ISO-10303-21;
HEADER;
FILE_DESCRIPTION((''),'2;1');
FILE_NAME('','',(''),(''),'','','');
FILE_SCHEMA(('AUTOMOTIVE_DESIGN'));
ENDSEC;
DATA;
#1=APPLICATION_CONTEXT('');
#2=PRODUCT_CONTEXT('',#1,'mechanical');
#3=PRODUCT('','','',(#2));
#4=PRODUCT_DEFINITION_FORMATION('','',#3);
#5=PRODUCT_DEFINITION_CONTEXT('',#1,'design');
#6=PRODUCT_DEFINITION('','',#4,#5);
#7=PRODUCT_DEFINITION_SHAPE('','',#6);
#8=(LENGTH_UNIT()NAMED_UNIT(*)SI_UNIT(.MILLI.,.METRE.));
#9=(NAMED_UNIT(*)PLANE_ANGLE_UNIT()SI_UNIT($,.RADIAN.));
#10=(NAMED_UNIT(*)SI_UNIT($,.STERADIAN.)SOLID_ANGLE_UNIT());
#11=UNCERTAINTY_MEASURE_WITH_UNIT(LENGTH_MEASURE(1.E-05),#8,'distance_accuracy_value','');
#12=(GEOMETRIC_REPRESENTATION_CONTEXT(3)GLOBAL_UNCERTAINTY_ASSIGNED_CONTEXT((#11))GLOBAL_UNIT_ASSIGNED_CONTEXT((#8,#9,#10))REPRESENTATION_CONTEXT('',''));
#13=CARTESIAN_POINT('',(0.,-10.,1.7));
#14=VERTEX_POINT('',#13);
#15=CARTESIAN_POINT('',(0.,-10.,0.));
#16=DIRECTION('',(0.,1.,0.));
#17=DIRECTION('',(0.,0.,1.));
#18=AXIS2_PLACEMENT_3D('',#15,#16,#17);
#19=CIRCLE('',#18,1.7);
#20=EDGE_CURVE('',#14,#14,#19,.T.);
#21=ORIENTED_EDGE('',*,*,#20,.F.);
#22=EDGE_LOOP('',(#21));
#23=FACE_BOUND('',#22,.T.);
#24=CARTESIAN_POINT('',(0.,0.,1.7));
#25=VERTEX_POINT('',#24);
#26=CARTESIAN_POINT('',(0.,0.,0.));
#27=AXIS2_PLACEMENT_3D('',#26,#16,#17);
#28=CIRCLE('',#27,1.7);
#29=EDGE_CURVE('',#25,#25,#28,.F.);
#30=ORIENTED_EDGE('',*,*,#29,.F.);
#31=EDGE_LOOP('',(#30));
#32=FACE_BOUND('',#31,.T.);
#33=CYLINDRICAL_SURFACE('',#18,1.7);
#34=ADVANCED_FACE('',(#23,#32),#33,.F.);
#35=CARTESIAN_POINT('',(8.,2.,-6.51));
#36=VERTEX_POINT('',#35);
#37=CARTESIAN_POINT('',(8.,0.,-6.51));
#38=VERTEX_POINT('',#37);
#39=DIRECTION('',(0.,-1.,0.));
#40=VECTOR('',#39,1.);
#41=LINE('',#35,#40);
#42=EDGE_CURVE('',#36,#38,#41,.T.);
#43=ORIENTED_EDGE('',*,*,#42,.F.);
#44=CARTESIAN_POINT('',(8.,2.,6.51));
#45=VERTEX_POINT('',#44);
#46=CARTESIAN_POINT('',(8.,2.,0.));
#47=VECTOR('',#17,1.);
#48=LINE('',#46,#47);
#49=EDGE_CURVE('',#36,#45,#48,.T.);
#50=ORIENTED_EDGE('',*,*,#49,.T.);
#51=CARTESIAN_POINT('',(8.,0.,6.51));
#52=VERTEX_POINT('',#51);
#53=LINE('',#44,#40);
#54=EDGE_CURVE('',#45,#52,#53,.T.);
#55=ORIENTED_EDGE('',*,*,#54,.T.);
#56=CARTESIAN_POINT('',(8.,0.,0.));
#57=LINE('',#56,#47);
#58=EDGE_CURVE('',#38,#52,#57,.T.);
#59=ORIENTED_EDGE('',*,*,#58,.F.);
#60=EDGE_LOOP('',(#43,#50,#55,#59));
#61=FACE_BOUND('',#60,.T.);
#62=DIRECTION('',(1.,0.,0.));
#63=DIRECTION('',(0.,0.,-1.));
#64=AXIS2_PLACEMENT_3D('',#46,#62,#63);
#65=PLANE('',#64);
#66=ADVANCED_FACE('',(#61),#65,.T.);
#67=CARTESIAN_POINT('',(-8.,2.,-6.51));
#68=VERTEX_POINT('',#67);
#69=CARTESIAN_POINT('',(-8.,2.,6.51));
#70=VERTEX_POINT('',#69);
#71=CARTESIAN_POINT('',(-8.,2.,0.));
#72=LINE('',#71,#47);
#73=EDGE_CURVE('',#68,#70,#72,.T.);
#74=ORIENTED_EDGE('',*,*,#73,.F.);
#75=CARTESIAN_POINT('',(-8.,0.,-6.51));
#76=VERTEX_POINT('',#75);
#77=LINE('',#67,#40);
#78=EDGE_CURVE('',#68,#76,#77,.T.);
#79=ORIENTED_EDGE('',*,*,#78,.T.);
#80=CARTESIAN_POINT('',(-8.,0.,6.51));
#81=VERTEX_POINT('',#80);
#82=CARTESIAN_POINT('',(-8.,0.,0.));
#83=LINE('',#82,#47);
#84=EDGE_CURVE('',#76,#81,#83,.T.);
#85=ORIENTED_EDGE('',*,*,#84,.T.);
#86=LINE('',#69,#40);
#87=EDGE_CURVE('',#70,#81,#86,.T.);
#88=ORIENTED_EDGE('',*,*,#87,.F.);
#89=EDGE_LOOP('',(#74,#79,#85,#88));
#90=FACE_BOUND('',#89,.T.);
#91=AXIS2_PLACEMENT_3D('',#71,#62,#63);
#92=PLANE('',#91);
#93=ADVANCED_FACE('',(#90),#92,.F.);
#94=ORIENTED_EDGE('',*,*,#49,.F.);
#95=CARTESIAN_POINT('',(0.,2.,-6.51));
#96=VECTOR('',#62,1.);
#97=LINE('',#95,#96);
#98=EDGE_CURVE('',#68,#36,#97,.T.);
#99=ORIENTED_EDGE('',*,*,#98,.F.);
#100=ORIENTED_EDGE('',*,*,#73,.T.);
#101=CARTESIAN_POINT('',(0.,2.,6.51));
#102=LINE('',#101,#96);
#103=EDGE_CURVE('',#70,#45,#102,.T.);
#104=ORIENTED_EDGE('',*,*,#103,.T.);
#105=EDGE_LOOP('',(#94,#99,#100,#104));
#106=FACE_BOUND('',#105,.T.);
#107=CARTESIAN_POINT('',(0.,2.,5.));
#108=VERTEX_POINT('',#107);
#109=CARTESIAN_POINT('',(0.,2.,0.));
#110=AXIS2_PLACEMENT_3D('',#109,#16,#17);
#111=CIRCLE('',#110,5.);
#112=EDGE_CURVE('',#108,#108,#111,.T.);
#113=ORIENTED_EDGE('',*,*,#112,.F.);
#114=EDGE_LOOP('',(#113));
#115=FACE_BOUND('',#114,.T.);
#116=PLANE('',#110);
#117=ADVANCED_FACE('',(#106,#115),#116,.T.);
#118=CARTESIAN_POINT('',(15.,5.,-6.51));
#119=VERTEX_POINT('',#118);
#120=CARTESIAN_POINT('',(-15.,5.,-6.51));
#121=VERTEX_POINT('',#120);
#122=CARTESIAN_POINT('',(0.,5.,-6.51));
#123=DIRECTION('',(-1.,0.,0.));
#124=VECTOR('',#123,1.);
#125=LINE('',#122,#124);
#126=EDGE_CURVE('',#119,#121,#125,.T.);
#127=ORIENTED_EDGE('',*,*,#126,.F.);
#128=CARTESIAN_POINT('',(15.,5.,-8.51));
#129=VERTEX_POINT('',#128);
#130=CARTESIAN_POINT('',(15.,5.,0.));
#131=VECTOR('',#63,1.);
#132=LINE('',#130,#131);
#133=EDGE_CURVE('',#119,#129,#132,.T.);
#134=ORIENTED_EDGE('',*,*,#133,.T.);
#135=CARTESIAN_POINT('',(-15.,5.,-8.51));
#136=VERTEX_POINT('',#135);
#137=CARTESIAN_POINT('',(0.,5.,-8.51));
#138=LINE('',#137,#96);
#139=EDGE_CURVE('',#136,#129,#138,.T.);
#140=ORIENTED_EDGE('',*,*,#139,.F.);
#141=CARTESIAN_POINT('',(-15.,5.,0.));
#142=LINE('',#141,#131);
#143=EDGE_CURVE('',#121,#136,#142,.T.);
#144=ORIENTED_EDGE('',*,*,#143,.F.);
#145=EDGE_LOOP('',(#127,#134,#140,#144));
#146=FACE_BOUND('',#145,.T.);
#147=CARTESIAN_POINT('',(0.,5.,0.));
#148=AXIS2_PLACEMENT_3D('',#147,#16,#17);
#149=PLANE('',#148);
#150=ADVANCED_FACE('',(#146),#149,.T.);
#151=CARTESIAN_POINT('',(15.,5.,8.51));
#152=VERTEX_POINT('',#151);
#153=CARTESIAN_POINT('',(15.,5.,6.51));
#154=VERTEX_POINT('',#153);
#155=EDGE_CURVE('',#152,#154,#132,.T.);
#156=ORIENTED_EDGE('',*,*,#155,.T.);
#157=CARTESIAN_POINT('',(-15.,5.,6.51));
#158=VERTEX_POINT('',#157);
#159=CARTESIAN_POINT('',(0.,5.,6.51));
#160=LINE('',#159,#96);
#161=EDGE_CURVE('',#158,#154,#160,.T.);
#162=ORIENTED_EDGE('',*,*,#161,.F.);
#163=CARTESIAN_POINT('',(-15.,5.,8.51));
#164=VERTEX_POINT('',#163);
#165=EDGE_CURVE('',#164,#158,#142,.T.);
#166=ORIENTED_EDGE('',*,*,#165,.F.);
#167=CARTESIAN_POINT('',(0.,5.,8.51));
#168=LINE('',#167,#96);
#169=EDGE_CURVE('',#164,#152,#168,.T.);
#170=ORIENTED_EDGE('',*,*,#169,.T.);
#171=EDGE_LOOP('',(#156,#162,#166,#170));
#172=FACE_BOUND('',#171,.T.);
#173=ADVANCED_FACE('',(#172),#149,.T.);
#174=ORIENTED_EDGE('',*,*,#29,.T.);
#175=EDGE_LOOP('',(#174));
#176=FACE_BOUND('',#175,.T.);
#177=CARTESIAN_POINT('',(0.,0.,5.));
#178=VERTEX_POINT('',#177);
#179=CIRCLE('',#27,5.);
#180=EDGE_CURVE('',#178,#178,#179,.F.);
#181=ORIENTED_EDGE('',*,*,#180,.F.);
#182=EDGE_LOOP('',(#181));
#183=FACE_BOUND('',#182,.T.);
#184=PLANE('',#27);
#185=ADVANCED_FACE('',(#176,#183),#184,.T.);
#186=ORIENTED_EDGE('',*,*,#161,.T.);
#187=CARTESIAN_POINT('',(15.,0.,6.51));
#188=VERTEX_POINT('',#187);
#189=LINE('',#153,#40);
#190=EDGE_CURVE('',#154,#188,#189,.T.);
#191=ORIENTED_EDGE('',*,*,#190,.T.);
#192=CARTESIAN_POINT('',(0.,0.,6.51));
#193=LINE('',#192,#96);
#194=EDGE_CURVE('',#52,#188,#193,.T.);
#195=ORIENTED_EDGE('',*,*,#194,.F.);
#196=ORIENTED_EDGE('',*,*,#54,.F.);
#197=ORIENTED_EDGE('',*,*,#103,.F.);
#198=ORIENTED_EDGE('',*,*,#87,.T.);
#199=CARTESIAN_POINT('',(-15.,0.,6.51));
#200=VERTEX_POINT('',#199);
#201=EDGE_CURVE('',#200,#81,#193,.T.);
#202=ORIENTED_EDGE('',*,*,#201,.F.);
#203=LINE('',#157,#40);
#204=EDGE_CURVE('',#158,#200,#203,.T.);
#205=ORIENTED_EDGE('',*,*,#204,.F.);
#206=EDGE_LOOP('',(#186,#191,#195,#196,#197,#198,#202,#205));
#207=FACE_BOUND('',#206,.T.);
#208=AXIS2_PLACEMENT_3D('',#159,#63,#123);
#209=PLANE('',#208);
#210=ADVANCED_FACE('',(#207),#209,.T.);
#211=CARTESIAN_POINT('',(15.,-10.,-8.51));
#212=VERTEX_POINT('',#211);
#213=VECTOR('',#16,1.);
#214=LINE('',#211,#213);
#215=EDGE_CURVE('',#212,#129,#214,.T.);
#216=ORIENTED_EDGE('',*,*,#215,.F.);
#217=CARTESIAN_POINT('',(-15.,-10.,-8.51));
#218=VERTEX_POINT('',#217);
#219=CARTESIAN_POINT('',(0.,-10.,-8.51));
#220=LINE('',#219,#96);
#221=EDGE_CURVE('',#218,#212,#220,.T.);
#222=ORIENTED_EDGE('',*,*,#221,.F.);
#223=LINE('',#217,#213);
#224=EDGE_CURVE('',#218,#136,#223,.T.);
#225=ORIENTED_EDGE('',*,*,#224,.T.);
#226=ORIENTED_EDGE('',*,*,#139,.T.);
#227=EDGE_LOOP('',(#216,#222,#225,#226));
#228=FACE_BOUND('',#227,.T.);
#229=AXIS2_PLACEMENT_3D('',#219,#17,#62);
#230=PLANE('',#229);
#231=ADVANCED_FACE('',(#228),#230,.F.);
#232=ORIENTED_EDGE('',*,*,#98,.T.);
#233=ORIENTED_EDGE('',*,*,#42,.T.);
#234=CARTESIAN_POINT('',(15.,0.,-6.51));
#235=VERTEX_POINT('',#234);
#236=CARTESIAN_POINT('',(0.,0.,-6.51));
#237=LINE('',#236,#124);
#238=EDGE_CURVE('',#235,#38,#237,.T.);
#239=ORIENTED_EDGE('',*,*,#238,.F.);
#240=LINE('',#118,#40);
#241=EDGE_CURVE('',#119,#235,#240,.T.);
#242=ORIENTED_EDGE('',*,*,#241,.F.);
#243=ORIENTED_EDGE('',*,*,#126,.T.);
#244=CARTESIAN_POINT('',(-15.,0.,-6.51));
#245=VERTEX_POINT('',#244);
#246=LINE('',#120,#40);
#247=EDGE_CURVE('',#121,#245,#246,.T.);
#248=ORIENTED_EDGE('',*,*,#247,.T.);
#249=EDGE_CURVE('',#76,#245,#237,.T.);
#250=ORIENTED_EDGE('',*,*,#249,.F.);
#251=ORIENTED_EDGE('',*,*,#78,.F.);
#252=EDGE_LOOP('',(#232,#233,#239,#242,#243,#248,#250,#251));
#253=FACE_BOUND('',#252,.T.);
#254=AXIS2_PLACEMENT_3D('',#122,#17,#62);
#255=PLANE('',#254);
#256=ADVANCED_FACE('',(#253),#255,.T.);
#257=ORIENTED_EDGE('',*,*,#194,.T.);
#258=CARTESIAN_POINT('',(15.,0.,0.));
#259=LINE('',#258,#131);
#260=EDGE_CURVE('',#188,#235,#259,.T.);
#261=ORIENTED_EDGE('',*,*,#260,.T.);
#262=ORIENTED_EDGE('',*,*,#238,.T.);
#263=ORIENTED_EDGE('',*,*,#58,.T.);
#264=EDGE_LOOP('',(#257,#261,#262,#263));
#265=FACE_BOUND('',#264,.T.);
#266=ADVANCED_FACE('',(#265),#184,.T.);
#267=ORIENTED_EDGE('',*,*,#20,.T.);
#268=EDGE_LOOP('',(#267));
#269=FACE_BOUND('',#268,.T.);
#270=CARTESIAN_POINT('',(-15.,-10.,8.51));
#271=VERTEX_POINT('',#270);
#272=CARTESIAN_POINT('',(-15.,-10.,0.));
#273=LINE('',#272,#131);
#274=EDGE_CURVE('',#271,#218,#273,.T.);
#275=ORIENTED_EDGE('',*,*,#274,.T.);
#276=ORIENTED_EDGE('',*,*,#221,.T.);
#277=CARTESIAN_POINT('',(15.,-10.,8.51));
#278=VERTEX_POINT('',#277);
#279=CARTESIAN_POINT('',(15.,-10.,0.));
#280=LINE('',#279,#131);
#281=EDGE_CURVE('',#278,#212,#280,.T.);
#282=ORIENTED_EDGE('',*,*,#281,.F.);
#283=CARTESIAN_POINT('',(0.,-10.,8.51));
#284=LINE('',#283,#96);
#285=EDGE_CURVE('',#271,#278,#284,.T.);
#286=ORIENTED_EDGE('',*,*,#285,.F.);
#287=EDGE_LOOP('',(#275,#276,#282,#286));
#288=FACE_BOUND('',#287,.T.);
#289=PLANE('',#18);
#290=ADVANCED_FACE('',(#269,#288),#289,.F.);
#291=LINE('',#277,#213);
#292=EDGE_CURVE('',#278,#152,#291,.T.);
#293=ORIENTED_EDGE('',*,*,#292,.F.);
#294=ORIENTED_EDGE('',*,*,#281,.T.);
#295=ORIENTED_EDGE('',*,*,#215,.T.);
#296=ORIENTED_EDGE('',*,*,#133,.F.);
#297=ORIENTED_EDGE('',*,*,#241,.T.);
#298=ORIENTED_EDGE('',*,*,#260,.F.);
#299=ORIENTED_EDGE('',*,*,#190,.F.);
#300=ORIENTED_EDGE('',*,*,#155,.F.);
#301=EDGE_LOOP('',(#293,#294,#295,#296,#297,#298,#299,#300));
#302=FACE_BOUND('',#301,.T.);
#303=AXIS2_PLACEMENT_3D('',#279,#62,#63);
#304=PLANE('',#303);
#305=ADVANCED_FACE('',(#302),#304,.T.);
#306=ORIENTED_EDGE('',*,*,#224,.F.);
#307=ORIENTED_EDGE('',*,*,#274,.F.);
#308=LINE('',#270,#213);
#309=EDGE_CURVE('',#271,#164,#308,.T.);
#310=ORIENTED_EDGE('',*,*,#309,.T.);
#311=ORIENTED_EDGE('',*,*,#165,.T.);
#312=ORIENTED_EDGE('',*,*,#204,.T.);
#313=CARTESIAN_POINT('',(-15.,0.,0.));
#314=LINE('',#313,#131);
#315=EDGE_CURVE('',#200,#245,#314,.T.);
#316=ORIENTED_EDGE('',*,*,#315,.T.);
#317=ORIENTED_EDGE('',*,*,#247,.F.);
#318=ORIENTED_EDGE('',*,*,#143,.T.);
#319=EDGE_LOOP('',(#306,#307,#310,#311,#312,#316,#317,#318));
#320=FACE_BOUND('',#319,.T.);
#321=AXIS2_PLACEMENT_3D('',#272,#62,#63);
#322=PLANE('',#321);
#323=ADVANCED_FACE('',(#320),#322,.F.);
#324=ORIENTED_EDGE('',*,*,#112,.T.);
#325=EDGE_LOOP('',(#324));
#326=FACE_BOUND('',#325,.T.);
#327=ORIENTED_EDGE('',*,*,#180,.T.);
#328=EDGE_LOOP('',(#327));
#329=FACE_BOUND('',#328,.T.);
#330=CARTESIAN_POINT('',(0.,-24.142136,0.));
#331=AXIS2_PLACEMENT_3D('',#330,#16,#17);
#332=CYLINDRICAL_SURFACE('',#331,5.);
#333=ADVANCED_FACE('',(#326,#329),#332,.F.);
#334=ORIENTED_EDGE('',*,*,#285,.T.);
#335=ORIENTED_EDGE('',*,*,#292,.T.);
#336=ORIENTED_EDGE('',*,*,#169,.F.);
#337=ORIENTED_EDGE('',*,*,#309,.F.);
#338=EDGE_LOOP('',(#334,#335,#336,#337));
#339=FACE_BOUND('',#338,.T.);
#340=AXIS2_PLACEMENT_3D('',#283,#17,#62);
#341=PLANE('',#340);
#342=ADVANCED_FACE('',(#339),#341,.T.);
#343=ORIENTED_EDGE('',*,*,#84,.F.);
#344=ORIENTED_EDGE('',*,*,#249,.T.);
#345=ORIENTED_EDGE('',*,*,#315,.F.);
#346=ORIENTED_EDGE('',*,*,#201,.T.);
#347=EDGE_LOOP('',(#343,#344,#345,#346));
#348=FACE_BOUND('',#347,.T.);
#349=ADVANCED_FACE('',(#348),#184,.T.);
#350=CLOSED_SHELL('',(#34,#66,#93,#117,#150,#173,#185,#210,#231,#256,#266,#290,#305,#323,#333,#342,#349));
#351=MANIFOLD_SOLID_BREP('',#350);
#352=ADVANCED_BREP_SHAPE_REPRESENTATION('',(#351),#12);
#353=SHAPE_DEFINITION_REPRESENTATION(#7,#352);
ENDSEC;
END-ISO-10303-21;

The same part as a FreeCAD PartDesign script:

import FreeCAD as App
import Part
import Sketcher
Q = App.Units.Quantity


def add_polygon(sketch, points):
    """Adds a closed chain of lines whose ends are joined by coincident constraints."""
    first, n = sketch.GeometryCount, len(points)
    for a, b in zip(points, points[1:] + points[:1]):
        sketch.addGeometry(Part.LineSegment(App.Vector(*a, 0), App.Vector(*b, 0)), False)
    for i in range(n):
        sketch.addConstraint(Sketcher.Constraint("Coincident", first + i, 2, first + (i + 1) % n, 1))

doc = App.newDocument("Part")
body = doc.addObject("PartDesign::Body", "Body")

sketch1 = body.newObject("Sketcher::SketchObject", "Sketch")
sketch1.AttachmentSupport = (doc.getObject("XZ_Plane"), [""])
sketch1.MapMode = "FlatFace"
add_polygon(sketch1, [(-15, 8.51), (15, 8.51), (15, -8.51), (-15, -8.51)])
sketch1.addConstraint([
    Sketcher.Constraint("Horizontal", 0),
    Sketcher.Constraint("Vertical", 1),
    Sketcher.Constraint("Horizontal", 2),
    Sketcher.Constraint("Vertical", 3),
    Sketcher.Constraint("Symmetric", 0, 2, 2, 2, -1, 1),
    Sketcher.Constraint("DistanceX", 0, 1, 0, 2, Q("30 mm")),
    Sketcher.Constraint("DistanceY", 1, 2, 1, 1, Q("17.02 mm")),
])
pad1 = body.newObject("PartDesign::Pad", "Pad")
pad1.Profile = sketch1
pad1.Length = 10

sketch2 = body.newObject("Sketcher::SketchObject", "Sketch001")
sketch2.AttachmentSupport = (doc.getObject("XZ_Plane"), [""])
sketch2.MapMode = "FlatFace"
add_polygon(sketch2, [(-8, -6.51), (-8, 6.51), (8, 6.51), (8, -6.51)])
sketch2.addConstraint([
    Sketcher.Constraint("Vertical", 0),
    Sketcher.Constraint("Horizontal", 1),
    Sketcher.Constraint("Vertical", 2),
    Sketcher.Constraint("Horizontal", 3),
    Sketcher.Constraint("Symmetric", 0, 2, 2, 2, -1, 1),
    Sketcher.Constraint("DistanceX", 1, 1, 1, 2, Q("16 mm")),
    Sketcher.Constraint("DistanceY", 0, 1, 0, 2, Q("13.02 mm")),
])
pad2 = body.newObject("PartDesign::Pad", "Pad001")
pad2.Profile = sketch2
pad2.Length = 2
pad2.Reversed = True

sketch3 = body.newObject("Sketcher::SketchObject", "Sketch002")
sketch3.AttachmentSupport = (doc.getObject("XZ_Plane"), [""])
sketch3.MapMode = "FlatFace"
add_polygon(sketch3, [(-15, 6.51), (-15, 8.51), (15, 8.51), (15, 6.51)])
add_polygon(sketch3, [(-15, -8.51), (-15, -6.51), (15, -6.51), (15, -8.51)])
sketch3.addConstraint([
    Sketcher.Constraint("Vertical", 0),
    Sketcher.Constraint("Horizontal", 1),
    Sketcher.Constraint("Vertical", 2),
    Sketcher.Constraint("Horizontal", 3),
    Sketcher.Constraint("Vertical", 4),
    Sketcher.Constraint("Horizontal", 5),
    Sketcher.Constraint("Vertical", 6),
    Sketcher.Constraint("Horizontal", 7),
    Sketcher.Constraint("Symmetric", 2, 2, 4, 2, -1, 1),
    Sketcher.Constraint("Symmetric", 0, 2, 6, 2, -1, 1),
    Sketcher.Constraint("Vertical", 3, 2, 4, 2),
    Sketcher.Constraint("DistanceX", 1, 1, 1, 2, Q("30 mm")),
    Sketcher.Constraint("DistanceY", 0, 1, 0, 2, Q("2 mm")),
    Sketcher.Constraint("DistanceY", -1, 1, 0, 2, Q("8.51 mm")),
])
pad3 = body.newObject("PartDesign::Pad", "Pad002")
pad3.Profile = sketch3
pad3.Length = 5
pad3.Reversed = True

sketch4 = body.newObject("Sketcher::SketchObject", "Sketch003")
sketch4.AttachmentSupport = (doc.getObject("XZ_Plane"), [""])
sketch4.MapMode = "FlatFace"
sketch4.AttachmentOffset = App.Placement(App.Vector(0, 0, -2), App.Rotation())
sketch4.addGeometry(Part.Circle(App.Vector(0, 0, 0), App.Vector(0, 0, 1), 1.7), False)
sketch4.addConstraint([
    Sketcher.Constraint("Coincident", 0, 3, -1, 1),
    Sketcher.Constraint("Diameter", 0, Q("3.4 mm")),
])
pocket1 = body.newObject("PartDesign::Pocket", "Pocket")
pocket1.Profile = sketch4
pocket1.Type = "ThroughAll"
pocket1.Reversed = True

sketch5 = body.newObject("Sketcher::SketchObject", "Sketch004")
sketch5.AttachmentSupport = (doc.getObject("XZ_Plane"), [""])
sketch5.MapMode = "FlatFace"
sketch5.AttachmentOffset = App.Placement(App.Vector(0, 0, -2), App.Rotation())
sketch5.addGeometry([
    Part.Circle(App.Vector(0, 0, 0), App.Vector(0, 0, 1), 5),
    Part.Circle(App.Vector(0, 0, 0), App.Vector(0, 0, 1), 1.7),
], False)
sketch5.addConstraint([
    Sketcher.Constraint("Coincident", 0, 3, -1, 1),
    Sketcher.Constraint("Coincident", 1, 3, -1, 1),
    Sketcher.Constraint("Diameter", 0, Q("10 mm")),
    Sketcher.Constraint("Diameter", 1, Q("3.4 mm")),
])
pocket2 = body.newObject("PartDesign::Pocket", "Pocket001")
pocket2.Profile = sketch5
pocket2.Length = 2
pocket2.Reversed = True

doc.recompute()
